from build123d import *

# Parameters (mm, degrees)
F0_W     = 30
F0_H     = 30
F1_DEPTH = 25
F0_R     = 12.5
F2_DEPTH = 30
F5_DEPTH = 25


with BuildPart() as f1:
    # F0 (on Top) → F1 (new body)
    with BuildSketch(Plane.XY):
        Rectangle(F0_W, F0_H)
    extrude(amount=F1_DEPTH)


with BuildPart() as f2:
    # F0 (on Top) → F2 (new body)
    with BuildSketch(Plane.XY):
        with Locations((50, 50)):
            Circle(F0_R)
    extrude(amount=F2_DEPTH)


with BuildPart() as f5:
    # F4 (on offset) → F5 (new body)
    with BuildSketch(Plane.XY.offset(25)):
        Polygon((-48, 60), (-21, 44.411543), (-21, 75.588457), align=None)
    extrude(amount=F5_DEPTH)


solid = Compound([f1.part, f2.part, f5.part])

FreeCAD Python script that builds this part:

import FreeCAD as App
import Part
import Sketcher
Q = App.Units.Quantity

doc = App.newDocument("Part")
body = doc.addObject("PartDesign::Body", "Body")

sketch1 = body.newObject("Sketcher::SketchObject", "Sketch")
sketch1.AttachmentSupport = (doc.getObject("XY_Plane"), [""])
sketch1.MapMode = "FlatFace"
sketch1.addGeometry([
    Part.LineSegment(App.Vector(-15, 15, 0), App.Vector(-15, -15, 0)),
    Part.LineSegment(App.Vector(-15, -15, 0), App.Vector(15, -15, 0)),
    Part.LineSegment(App.Vector(15, -15, 0), App.Vector(15, 15, 0)),
    Part.LineSegment(App.Vector(15, 15, 0), App.Vector(-15, 15, 0)),
], False)
sketch1.addConstraint([
    Sketcher.Constraint("Coincident", 0, 2, 1, 1),
    Sketcher.Constraint("Coincident", 1, 2, 2, 1),
    Sketcher.Constraint("Coincident", 2, 2, 3, 1),
    Sketcher.Constraint("Coincident", 3, 2, 0, 1),
    Sketcher.Constraint("Vertical", 0),
    Sketcher.Constraint("Horizontal", 1),
    Sketcher.Constraint("Vertical", 2),
    Sketcher.Constraint("Horizontal", 3),
    Sketcher.Constraint("Symmetric", 0, 2, 2, 2, -1, 1),
    Sketcher.Constraint("Equal", 3, 0),
    Sketcher.Constraint("DistanceX", 1, 1, 1, 2, Q("30 mm")),
])
pad1 = body.newObject("PartDesign::Pad", "Pad")
pad1.Profile = sketch1
pad1.Length = 25
body2 = doc.addObject("PartDesign::Body", "Body001")

sketch2 = body2.newObject("Sketcher::SketchObject", "Sketch001")
sketch2.AttachmentSupport = (doc.getObject("XY_Plane001"), [""])
sketch2.MapMode = "FlatFace"
sketch2.addGeometry(Part.Circle(App.Vector(50, 50, 0), App.Vector(0, 0, 1), 12), False)
sketch2.addConstraint([
    Sketcher.Constraint("Diameter", 0, Q("25 mm")),
    Sketcher.Constraint("DistanceX", -1, 1, 0, 3, Q("50 mm")),
    Sketcher.Constraint("DistanceY", -1, 1, 0, 3, Q("50 mm")),
])
pad2 = body2.newObject("PartDesign::Pad", "Pad001")
pad2.Profile = sketch2
pad2.Length = 30
body3 = doc.addObject("PartDesign::Body", "Body002")

sketch3 = body3.newObject("Sketcher::SketchObject", "Sketch002")
sketch3.AttachmentSupport = (doc.getObject("XY_Plane002"), [""])
sketch3.MapMode = "FlatFace"
sketch3.AttachmentOffset = App.Placement(App.Vector(0, 0, 25), App.Rotation())
sketch3.addGeometry([
    Part.LineSegment(App.Vector(-48, 60, 0), App.Vector(-21, 44, 0)),
    Part.LineSegment(App.Vector(-21, 44, 0), App.Vector(-21, 76, 0)),
    Part.LineSegment(App.Vector(-21, 76, 0), App.Vector(-48, 60, 0)),
], False)
sketch3.addConstraint([
    Sketcher.Constraint("Coincident", 0, 2, 1, 1),
    Sketcher.Constraint("Coincident", 1, 2, 2, 1),
    Sketcher.Constraint("Coincident", 2, 2, 0, 1),
    Sketcher.Constraint("Vertical", 1),
    Sketcher.Constraint("Equal", 0, 2),
    Sketcher.Constraint("Angle", 0, Q("-30 deg")),
    Sketcher.Constraint("DistanceX", 0, 2, -1, 1, Q("21 mm")),
    Sketcher.Constraint("DistanceX", 2, 2, -1, 1, Q("48 mm")),
    Sketcher.Constraint("DistanceY", -1, 1, 2, 2, Q("60 mm")),
])
pad3 = body3.newObject("PartDesign::Pad", "Pad002")
pad3.Profile = sketch3
pad3.Length = 25

doc.recompute()
